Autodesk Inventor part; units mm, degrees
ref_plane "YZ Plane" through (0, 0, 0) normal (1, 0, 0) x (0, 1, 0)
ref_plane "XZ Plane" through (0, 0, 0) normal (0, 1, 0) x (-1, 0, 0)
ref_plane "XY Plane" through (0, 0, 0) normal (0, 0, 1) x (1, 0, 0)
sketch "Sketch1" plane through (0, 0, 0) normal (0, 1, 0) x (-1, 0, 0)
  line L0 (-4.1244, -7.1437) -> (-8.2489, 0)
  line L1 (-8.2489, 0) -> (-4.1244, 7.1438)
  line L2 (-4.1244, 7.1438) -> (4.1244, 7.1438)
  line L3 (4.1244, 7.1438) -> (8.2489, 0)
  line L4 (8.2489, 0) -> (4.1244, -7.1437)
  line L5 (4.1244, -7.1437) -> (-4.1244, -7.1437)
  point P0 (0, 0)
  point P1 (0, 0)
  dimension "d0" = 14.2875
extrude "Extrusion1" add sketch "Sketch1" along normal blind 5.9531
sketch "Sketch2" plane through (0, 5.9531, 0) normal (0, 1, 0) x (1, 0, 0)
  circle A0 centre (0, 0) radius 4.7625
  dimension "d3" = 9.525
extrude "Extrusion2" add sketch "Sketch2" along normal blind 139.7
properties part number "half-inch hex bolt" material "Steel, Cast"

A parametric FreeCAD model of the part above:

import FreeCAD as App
import Part
import Sketcher

V = App.Vector
Q = App.Units.Quantity

doc = App.newDocument("Part")
body = doc.addObject("PartDesign::Body", "Body")

# Sketch on XZ plane
sketch1 = doc.addObject("Sketcher::SketchObject", "Sketch")
body.addObject(sketch1)
sketch1.AttachmentSupport = (doc.XZ_Plane, [""])
sketch1.MapMode = "FlatFace"
sketch1.addGeometry(Part.LineSegment(V(8.2489, 0, 0), V(4.1244, -7.1437, 0)), False)
sketch1.addGeometry(Part.LineSegment(V(4.1244, -7.1437, 0), V(-4.1244, -7.1437, 0)), False)
sketch1.addGeometry(Part.LineSegment(V(-4.1244, -7.1437, 0), V(-8.2489, 0, 0)), False)
sketch1.addGeometry(Part.LineSegment(V(-8.2489, 0, 0), V(-4.1244, 7.1438, 0)), False)
sketch1.addGeometry(Part.LineSegment(V(-4.1244, 7.1438, 0), V(4.1244, 7.1438, 0)), False)
sketch1.addGeometry(Part.LineSegment(V(4.1244, 7.1438, 0), V(8.2489, 0, 0)), False)
sketch1.addConstraint(Sketcher.Constraint("Coincident", 0, 2, 1, 1))
sketch1.addConstraint(Sketcher.Constraint("Coincident", 1, 2, 2, 1))
sketch1.addConstraint(Sketcher.Constraint("Coincident", 2, 2, 3, 1))
sketch1.addConstraint(Sketcher.Constraint("Coincident", 3, 2, 4, 1))
sketch1.addConstraint(Sketcher.Constraint("Coincident", 4, 2, 5, 1))
sketch1.addConstraint(Sketcher.Constraint("Coincident", 5, 2, 0, 1))
sketch1.addConstraint(Sketcher.Constraint("Horizontal", 1))
sketch1.addConstraint(Sketcher.Constraint("Horizontal", 4))
sketch1.addConstraint(Sketcher.Constraint("Symmetric", 0, 2, 3, 2, -1, 1))
sketch1.addConstraint(Sketcher.Constraint("Symmetric", 2, 2, 5, 2, -1, 1))
sketch1.addConstraint(Sketcher.Constraint("PointOnObject", 2, 2, -1))
sketch1.addConstraint(Sketcher.Constraint("Parallel", 2, 5))
sketch1.addConstraint(Sketcher.Constraint("Vertical", 1, 2, 3, 2))
sketch1.addConstraint(Sketcher.Constraint("Angle", 0, Q("-120.0005 deg")))
sketch1.addConstraint(Sketcher.Constraint("DistanceY", 1, 2, 3, 2, Q("0.5625 in")))
sketch1.addConstraint(Sketcher.Constraint("DistanceX", 1, 2, 1, 1, Q("8.2488 mm")))
pad1 = doc.addObject("PartDesign::Pad", "Pad")
body.addObject(pad1)
pad1.Profile = sketch1
pad1.Length = Q("0.234374 in")
pad1.Reversed = True

# Sketch on XZ plane
sketch2 = doc.addObject("Sketcher::SketchObject", "Sketch001")
body.addObject(sketch2)
sketch2.AttachmentSupport = (doc.XZ_Plane, [""])
sketch2.MapMode = "FlatFace"
sketch2.AttachmentOffset = App.Placement(V(0, 0, -0.234374 * 25.4), App.Rotation())
sketch2.addGeometry(Part.Circle(V(0, 0, 0), V(0, 0, 1), 4.7625), False)
sketch2.addConstraint(Sketcher.Constraint("Coincident", 0, 3, -1, 1))
sketch2.addConstraint(Sketcher.Constraint("Diameter", 0, Q("0.375 in")))
pad2 = doc.addObject("PartDesign::Pad", "Pad001")
body.addObject(pad2)
pad2.Profile = sketch2
pad2.Length = Q("5.5 in")
pad2.Reversed = True

doc.recompute()
